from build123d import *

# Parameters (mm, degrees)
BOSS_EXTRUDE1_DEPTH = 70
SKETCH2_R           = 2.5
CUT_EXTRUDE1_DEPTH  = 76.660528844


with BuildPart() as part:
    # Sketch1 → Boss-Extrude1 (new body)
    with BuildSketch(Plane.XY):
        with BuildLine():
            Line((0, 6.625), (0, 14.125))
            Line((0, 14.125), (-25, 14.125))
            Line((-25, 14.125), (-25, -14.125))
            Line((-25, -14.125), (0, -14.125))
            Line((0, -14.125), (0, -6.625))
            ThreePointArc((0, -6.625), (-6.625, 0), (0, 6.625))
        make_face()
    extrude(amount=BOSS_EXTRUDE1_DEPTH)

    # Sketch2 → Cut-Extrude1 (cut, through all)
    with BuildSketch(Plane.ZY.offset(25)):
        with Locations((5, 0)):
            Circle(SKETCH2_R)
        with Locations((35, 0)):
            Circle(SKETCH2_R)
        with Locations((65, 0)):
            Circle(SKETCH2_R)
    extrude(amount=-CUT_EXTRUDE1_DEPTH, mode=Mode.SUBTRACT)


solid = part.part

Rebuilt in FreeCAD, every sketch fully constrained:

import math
import FreeCAD as App
import Part
import Sketcher
Q = App.Units.Quantity

doc = App.newDocument("Part")
body = doc.addObject("PartDesign::Body", "Body")

sketch1 = doc.addObject("Sketcher::SketchObject", "Sketch")
body.addObject(sketch1)
sketch1.AttachmentSupport = (doc.XY_Plane, [""])
sketch1.MapMode = "FlatFace"
sketch1.addGeometry([
    Part.LineSegment(App.Vector(0, 7, 0), App.Vector(0, 14, 0)),
    Part.LineSegment(App.Vector(0, 14, 0), App.Vector(-25, 14, 0)),
    Part.LineSegment(App.Vector(-25, 14, 0), App.Vector(-25, -14, 0)),
    Part.LineSegment(App.Vector(-25, -14, 0), App.Vector(0, -14, 0)),
    Part.LineSegment(App.Vector(0, -14, 0), App.Vector(0, -7, 0)),
    Part.ArcOfCircle(Part.Circle(App.Vector(0, 0, 0), App.Vector(0, 0, 1), 7), math.radians(90), math.radians(270)),
], False)
sketch1.addConstraint([
    Sketcher.Constraint("Coincident", 0, 2, 1, 1),
    Sketcher.Constraint("Coincident", 1, 2, 2, 1),
    Sketcher.Constraint("Coincident", 2, 2, 3, 1),
    Sketcher.Constraint("Coincident", 3, 2, 4, 1),
    Sketcher.Constraint("Coincident", 4, 2, 5, 2),
    Sketcher.Constraint("Coincident", 5, 1, 0, 1),
    Sketcher.Constraint("Vertical", 0),
    Sketcher.Constraint("Horizontal", 1),
    Sketcher.Constraint("Vertical", 2),
    Sketcher.Constraint("Horizontal", 3),
    Sketcher.Constraint("Vertical", 4),
    Sketcher.Constraint("Coincident", 5, 3, -1, 1),
    Sketcher.Constraint("Symmetric", 0, 2, 3, 2, -1, 1),
    Sketcher.Constraint("PointOnObject", 0, 2, -2),
    Sketcher.Constraint("DistanceX", 1, 2, 1, 1, Q("25 mm")),
    Sketcher.Constraint("DistanceY", 0, 1, 0, 2, Q("7.5 mm")),
    Sketcher.Constraint("Radius", 5, Q("6.625 mm")),
])
pad1 = doc.addObject("PartDesign::Pad", "Pad")
body.addObject(pad1)
pad1.Profile = sketch1
pad1.Length = 70

sketch2 = doc.addObject("Sketcher::SketchObject", "Sketch001")
body.addObject(sketch2)
sketch2.AttachmentSupport = (doc.YZ_Plane, [""])
sketch2.MapMode = "FlatFace"
sketch2.AttachmentOffset = App.Placement(App.Vector(0, 0, -25), App.Rotation())
sketch2.addGeometry([
    Part.Circle(App.Vector(0, 5, 0), App.Vector(0, 0, 1), 2.5),
    Part.Circle(App.Vector(0, 35, 0), App.Vector(0, 0, 1), 2.5),
    Part.Circle(App.Vector(0, 65, 0), App.Vector(0, 0, 1), 2.5),
], False)
sketch2.addConstraint([
    Sketcher.Constraint("Equal", 0, 1),
    Sketcher.Constraint("Equal", 1, 2),
    Sketcher.Constraint("PointOnObject", 0, 3, -2),
    Sketcher.Constraint("PointOnObject", 1, 3, -2),
    Sketcher.Constraint("PointOnObject", 2, 3, -2),
    Sketcher.Constraint("Diameter", 0, Q("5 mm")),
    Sketcher.Constraint("DistanceY", -1, 1, 0, 3, Q("5 mm")),
    Sketcher.Constraint("DistanceY", -1, 1, 1, 3, Q("35 mm")),
    Sketcher.Constraint("DistanceY", -1, 1, 2, 3, Q("65 mm")),
])
pocket1 = doc.addObject("PartDesign::Pocket", "Pocket")
body.addObject(pocket1)
pocket1.Profile = sketch2
pocket1.Type = "ThroughAll"
pocket1.Reversed = True

doc.recompute()
